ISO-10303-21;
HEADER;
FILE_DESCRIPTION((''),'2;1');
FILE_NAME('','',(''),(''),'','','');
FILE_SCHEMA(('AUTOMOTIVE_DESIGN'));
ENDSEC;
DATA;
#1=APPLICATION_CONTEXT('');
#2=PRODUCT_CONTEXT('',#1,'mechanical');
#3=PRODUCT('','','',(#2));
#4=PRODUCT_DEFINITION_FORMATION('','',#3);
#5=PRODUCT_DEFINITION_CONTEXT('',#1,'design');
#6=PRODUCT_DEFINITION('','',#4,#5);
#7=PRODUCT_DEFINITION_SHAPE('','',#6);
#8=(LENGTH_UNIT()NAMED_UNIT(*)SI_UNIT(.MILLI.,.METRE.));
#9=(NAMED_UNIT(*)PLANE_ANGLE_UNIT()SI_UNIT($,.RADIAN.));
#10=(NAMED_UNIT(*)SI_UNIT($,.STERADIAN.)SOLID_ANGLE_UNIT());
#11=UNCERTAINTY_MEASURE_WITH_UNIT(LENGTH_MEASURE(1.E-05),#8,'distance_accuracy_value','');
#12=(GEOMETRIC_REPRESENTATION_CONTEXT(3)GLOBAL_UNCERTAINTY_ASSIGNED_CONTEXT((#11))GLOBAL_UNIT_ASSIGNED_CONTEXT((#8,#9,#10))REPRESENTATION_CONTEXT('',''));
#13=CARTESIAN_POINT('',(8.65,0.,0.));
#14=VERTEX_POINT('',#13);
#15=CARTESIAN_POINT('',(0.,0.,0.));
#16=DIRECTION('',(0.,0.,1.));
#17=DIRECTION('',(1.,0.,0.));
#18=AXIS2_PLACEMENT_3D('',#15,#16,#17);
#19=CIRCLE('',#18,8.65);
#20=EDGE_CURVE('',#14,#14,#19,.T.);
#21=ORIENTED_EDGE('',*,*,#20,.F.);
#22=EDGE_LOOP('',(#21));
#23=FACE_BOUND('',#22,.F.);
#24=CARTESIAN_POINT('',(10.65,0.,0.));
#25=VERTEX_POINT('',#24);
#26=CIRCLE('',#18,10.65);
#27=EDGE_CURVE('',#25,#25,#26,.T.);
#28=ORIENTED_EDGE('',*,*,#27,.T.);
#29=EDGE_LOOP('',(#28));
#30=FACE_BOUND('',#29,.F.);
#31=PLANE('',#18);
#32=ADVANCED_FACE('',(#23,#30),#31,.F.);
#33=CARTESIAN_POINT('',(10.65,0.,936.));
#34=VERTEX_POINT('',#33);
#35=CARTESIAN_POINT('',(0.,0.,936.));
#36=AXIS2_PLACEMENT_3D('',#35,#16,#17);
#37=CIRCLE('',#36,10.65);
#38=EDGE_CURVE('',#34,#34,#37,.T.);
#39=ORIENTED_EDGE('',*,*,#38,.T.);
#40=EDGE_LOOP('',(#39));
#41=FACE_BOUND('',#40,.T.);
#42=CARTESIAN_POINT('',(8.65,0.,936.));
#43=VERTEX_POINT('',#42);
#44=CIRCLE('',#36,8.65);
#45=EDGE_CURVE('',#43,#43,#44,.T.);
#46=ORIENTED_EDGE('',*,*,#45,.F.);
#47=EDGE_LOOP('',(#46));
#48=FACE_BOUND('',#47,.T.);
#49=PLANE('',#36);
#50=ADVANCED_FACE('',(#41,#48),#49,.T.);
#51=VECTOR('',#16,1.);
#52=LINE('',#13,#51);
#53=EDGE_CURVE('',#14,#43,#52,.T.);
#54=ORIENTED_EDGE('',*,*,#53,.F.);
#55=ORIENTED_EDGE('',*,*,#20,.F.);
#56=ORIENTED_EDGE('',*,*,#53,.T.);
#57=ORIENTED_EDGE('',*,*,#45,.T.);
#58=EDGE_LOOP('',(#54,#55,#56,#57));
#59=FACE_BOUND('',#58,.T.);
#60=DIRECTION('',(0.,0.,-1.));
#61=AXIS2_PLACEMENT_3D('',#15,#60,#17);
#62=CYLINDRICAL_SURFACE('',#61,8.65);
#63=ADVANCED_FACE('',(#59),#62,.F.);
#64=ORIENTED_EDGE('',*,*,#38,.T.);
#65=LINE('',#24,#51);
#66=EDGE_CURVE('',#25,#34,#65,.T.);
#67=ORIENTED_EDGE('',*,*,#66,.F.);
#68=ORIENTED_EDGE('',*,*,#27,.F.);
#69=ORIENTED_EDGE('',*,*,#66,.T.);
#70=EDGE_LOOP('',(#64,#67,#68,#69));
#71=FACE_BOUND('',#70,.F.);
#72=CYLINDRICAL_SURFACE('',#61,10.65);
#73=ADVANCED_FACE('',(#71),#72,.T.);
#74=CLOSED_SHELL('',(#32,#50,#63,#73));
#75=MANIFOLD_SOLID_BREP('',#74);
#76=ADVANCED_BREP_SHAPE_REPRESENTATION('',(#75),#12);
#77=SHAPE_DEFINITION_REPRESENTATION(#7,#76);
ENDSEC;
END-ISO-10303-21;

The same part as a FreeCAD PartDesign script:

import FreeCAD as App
import Part
import Sketcher

V = App.Vector
Q = App.Units.Quantity

doc = App.newDocument("Part")
body = doc.addObject("PartDesign::Body", "Body")

# Sketch on XY plane
sketch1 = body.newObject("Sketcher::SketchObject", "Sketch")
sketch1.AttachmentSupport = (doc.getObject("XY_Plane"), [""])
sketch1.MapMode = "FlatFace"
sketch1.addGeometry([
    Part.Circle(V(0, 0, 0), V(0, 0, 1), 11),
    Part.Circle(V(0, 0, 0), V(0, 0, 1), 9),
], False)
sketch1.addConstraint([
    Sketcher.Constraint("Coincident", 0, 3, -1, 1),
    Sketcher.Constraint("Coincident", 1, 3, -1, 1),
    Sketcher.Constraint("Diameter", 0, Q("21.3 mm")),
    Sketcher.Constraint("Diameter", 1, Q("17.3 mm")),
])
pad1 = body.newObject("PartDesign::Pad", "Pad")
pad1.Profile = sketch1
pad1.Length = 936

doc.recompute()
